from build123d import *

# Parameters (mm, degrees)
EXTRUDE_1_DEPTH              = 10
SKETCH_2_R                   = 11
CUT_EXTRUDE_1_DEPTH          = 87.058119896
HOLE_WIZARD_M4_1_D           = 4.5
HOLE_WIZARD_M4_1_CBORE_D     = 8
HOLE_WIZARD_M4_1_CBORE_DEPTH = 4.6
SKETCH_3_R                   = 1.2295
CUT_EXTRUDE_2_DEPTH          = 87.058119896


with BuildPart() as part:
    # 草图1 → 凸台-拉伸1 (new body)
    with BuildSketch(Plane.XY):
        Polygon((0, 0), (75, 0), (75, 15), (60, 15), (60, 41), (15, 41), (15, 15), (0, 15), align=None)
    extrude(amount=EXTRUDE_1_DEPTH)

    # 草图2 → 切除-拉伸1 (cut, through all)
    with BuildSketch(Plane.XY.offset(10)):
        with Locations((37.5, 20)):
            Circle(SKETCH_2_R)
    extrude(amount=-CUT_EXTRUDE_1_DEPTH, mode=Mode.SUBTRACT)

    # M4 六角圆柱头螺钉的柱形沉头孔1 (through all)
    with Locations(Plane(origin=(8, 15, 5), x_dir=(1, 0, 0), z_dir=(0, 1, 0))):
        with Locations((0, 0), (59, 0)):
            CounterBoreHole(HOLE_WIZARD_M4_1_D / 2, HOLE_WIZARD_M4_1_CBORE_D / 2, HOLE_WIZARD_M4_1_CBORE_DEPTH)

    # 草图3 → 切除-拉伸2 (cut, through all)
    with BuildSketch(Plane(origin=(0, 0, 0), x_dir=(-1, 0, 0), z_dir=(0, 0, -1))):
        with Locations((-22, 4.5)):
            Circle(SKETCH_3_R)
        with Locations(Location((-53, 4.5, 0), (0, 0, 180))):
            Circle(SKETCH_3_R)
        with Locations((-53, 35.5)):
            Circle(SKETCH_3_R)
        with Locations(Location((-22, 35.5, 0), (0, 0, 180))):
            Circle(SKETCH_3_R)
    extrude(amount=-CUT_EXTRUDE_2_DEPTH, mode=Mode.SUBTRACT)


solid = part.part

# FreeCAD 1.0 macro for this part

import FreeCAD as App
import Part
import Sketcher
Q = App.Units.Quantity


def add_polygon(sketch, points):
    """Adds a closed chain of lines whose ends are joined by coincident constraints."""
    first, n = sketch.GeometryCount, len(points)
    for a, b in zip(points, points[1:] + points[:1]):
        sketch.addGeometry(Part.LineSegment(App.Vector(*a, 0), App.Vector(*b, 0)), False)
    for i in range(n):
        sketch.addConstraint(Sketcher.Constraint("Coincident", first + i, 2, first + (i + 1) % n, 1))

doc = App.newDocument("Part")
body = doc.addObject("PartDesign::Body", "Body")

# Sketch on XY plane
sketch1 = doc.addObject("Sketcher::SketchObject", "Sketch")
body.addObject(sketch1)
sketch1.AttachmentSupport = (doc.XY_Plane, [""])
sketch1.MapMode = "FlatFace"
add_polygon(sketch1, [(0, 0), (75, 0), (75, 15), (60, 15), (60, 41), (15, 41), (15, 15), (0, 15)])  # lines 0-7
sketch1.addConstraint(Sketcher.Constraint("Horizontal", 0))
sketch1.addConstraint(Sketcher.Constraint("Vertical", 1))
sketch1.addConstraint(Sketcher.Constraint("Horizontal", 2))
sketch1.addConstraint(Sketcher.Constraint("Vertical", 3))
sketch1.addConstraint(Sketcher.Constraint("Horizontal", 4))
sketch1.addConstraint(Sketcher.Constraint("Vertical", 5))
sketch1.addConstraint(Sketcher.Constraint("Horizontal", 6))
sketch1.addConstraint(Sketcher.Constraint("Vertical", 7))
sketch1.addConstraint(Sketcher.Constraint("Coincident", 7, 2, -1, 1))
sketch1.addConstraint(Sketcher.Constraint("Horizontal", 2, 2, 5, 2))
sketch1.addConstraint(Sketcher.Constraint("Equal", 2, 6))
sketch1.addConstraint(Sketcher.Constraint("Equal", 6, 1))
sketch1.addConstraint(Sketcher.Constraint("DistanceX", 0, 1, 0, 2, Q("75 mm")))
sketch1.addConstraint(Sketcher.Constraint("DistanceX", 2, 2, 2, 1, Q("15 mm")))
sketch1.addConstraint(Sketcher.Constraint("DistanceY", 3, 1, 3, 2, Q("26 mm")))
pad1 = doc.addObject("PartDesign::Pad", "Pad")
body.addObject(pad1)
pad1.Profile = sketch1
pad1.Length = 10

# Sketch on XY plane
sketch2 = doc.addObject("Sketcher::SketchObject", "Sketch001")
body.addObject(sketch2)
sketch2.AttachmentSupport = (doc.XY_Plane, [""])
sketch2.MapMode = "FlatFace"
sketch2.AttachmentOffset = App.Placement(App.Vector(0, 0, 10), App.Rotation())
sketch2.addGeometry(Part.Circle(App.Vector(38, 20, 0), App.Vector(0, 0, 1), 11), False)
sketch2.addConstraint(Sketcher.Constraint("Diameter", 0, Q("22 mm")))
sketch2.addConstraint(Sketcher.Constraint("DistanceY", -1, 1, 0, 3, Q("20 mm")))
sketch2.addConstraint(Sketcher.Constraint("DistanceX", -1, 1, 0, 3, Q("37.5 mm")))
pocket1 = doc.addObject("PartDesign::Pocket", "Pocket")
body.addObject(pocket1)
pocket1.Profile = sketch2
pocket1.Type = "ThroughAll"

# Sketch on XZ plane
sketch3 = doc.addObject("Sketcher::SketchObject", "Sketch002")
body.addObject(sketch3)
sketch3.AttachmentSupport = (doc.XZ_Plane, [""])
sketch3.MapMode = "FlatFace"
sketch3.AttachmentOffset = App.Placement(App.Vector(0, 0, -15), App.Rotation())
sketch3.addGeometry(Part.Circle(App.Vector(8, 5, 0), App.Vector(0, 0, 1), 2.2), False)
sketch3.addGeometry(Part.Circle(App.Vector(67, 5, 0), App.Vector(0, 0, 1), 2.2), False)
sketch3.addConstraint(Sketcher.Constraint("Equal", 0, 1))
sketch3.addConstraint(Sketcher.Constraint("Horizontal", 0, 3, 1, 3))
sketch3.addConstraint(Sketcher.Constraint("Diameter", 0, Q("4.5 mm")))
sketch3.addConstraint(Sketcher.Constraint("DistanceX", -1, 1, 0, 3, Q("8 mm")))
sketch3.addConstraint(Sketcher.Constraint("DistanceY", -1, 1, 0, 3, Q("5 mm")))
sketch3.addConstraint(Sketcher.Constraint("DistanceX", -1, 1, 1, 3, Q("67 mm")))
doc.recompute()
hole = doc.addObject("PartDesign::Hole", "Hole")
body.addObject(hole)
hole.Profile = sketch3
hole.ThreadType = "None"
hole.Diameter = 4.5
hole.DepthType = "ThroughAll"
hole.HoleCutType = "Counterbore"
hole.HoleCutDiameter = 8
hole.HoleCutDepth = 4.6
hole.Reversed = True

# Sketch on XY plane
sketch4 = doc.addObject("Sketcher::SketchObject", "Sketch003")
body.addObject(sketch4)
sketch4.AttachmentSupport = (doc.XY_Plane, [""])
sketch4.MapMode = "FlatFace"
sketch4.addGeometry(Part.Circle(App.Vector(22, 4.5, 0), App.Vector(0, 0, 1), 1.2), False)
sketch4.addGeometry(Part.Circle(App.Vector(53, 4.5, 0), App.Vector(0, 0, 1), 1.2), False)
sketch4.addGeometry(Part.Circle(App.Vector(53, 35.5, 0), App.Vector(0, 0, 1), 1.2), False)
sketch4.addGeometry(Part.Circle(App.Vector(22, 35.5, 0), App.Vector(0, 0, 1), 1.2), False)
sketch4.addConstraint(Sketcher.Constraint("Equal", 0, 1))
sketch4.addConstraint(Sketcher.Constraint("Equal", 1, 2))
sketch4.addConstraint(Sketcher.Constraint("Equal", 2, 3))
sketch4.addConstraint(Sketcher.Constraint("Horizontal", 0, 3, 1, 3))
sketch4.addConstraint(Sketcher.Constraint("Horizontal", 2, 3, 3, 3))
sketch4.addConstraint(Sketcher.Constraint("Vertical", 1, 3, 2, 3))
sketch4.addConstraint(Sketcher.Constraint("Vertical", 0, 3, 3, 3))
sketch4.addConstraint(Sketcher.Constraint("Diameter", 0, Q("2.459 mm")))
sketch4.addConstraint(Sketcher.Constraint("DistanceX", -1, 1, 0, 3, Q("22 mm")))
sketch4.addConstraint(Sketcher.Constraint("DistanceX", -1, 1, 1, 3, Q("53 mm")))
sketch4.addConstraint(Sketcher.Constraint("DistanceY", 1, 3, 2, 3, Q("31 mm")))
sketch4.addConstraint(Sketcher.Constraint("DistanceY", -1, 1, 0, 3, Q("4.5 mm")))
pocket2 = doc.addObject("PartDesign::Pocket", "Pocket001")
body.addObject(pocket2)
pocket2.Profile = sketch4
pocket2.Type = "ThroughAll"
pocket2.Reversed = True

doc.recompute()
